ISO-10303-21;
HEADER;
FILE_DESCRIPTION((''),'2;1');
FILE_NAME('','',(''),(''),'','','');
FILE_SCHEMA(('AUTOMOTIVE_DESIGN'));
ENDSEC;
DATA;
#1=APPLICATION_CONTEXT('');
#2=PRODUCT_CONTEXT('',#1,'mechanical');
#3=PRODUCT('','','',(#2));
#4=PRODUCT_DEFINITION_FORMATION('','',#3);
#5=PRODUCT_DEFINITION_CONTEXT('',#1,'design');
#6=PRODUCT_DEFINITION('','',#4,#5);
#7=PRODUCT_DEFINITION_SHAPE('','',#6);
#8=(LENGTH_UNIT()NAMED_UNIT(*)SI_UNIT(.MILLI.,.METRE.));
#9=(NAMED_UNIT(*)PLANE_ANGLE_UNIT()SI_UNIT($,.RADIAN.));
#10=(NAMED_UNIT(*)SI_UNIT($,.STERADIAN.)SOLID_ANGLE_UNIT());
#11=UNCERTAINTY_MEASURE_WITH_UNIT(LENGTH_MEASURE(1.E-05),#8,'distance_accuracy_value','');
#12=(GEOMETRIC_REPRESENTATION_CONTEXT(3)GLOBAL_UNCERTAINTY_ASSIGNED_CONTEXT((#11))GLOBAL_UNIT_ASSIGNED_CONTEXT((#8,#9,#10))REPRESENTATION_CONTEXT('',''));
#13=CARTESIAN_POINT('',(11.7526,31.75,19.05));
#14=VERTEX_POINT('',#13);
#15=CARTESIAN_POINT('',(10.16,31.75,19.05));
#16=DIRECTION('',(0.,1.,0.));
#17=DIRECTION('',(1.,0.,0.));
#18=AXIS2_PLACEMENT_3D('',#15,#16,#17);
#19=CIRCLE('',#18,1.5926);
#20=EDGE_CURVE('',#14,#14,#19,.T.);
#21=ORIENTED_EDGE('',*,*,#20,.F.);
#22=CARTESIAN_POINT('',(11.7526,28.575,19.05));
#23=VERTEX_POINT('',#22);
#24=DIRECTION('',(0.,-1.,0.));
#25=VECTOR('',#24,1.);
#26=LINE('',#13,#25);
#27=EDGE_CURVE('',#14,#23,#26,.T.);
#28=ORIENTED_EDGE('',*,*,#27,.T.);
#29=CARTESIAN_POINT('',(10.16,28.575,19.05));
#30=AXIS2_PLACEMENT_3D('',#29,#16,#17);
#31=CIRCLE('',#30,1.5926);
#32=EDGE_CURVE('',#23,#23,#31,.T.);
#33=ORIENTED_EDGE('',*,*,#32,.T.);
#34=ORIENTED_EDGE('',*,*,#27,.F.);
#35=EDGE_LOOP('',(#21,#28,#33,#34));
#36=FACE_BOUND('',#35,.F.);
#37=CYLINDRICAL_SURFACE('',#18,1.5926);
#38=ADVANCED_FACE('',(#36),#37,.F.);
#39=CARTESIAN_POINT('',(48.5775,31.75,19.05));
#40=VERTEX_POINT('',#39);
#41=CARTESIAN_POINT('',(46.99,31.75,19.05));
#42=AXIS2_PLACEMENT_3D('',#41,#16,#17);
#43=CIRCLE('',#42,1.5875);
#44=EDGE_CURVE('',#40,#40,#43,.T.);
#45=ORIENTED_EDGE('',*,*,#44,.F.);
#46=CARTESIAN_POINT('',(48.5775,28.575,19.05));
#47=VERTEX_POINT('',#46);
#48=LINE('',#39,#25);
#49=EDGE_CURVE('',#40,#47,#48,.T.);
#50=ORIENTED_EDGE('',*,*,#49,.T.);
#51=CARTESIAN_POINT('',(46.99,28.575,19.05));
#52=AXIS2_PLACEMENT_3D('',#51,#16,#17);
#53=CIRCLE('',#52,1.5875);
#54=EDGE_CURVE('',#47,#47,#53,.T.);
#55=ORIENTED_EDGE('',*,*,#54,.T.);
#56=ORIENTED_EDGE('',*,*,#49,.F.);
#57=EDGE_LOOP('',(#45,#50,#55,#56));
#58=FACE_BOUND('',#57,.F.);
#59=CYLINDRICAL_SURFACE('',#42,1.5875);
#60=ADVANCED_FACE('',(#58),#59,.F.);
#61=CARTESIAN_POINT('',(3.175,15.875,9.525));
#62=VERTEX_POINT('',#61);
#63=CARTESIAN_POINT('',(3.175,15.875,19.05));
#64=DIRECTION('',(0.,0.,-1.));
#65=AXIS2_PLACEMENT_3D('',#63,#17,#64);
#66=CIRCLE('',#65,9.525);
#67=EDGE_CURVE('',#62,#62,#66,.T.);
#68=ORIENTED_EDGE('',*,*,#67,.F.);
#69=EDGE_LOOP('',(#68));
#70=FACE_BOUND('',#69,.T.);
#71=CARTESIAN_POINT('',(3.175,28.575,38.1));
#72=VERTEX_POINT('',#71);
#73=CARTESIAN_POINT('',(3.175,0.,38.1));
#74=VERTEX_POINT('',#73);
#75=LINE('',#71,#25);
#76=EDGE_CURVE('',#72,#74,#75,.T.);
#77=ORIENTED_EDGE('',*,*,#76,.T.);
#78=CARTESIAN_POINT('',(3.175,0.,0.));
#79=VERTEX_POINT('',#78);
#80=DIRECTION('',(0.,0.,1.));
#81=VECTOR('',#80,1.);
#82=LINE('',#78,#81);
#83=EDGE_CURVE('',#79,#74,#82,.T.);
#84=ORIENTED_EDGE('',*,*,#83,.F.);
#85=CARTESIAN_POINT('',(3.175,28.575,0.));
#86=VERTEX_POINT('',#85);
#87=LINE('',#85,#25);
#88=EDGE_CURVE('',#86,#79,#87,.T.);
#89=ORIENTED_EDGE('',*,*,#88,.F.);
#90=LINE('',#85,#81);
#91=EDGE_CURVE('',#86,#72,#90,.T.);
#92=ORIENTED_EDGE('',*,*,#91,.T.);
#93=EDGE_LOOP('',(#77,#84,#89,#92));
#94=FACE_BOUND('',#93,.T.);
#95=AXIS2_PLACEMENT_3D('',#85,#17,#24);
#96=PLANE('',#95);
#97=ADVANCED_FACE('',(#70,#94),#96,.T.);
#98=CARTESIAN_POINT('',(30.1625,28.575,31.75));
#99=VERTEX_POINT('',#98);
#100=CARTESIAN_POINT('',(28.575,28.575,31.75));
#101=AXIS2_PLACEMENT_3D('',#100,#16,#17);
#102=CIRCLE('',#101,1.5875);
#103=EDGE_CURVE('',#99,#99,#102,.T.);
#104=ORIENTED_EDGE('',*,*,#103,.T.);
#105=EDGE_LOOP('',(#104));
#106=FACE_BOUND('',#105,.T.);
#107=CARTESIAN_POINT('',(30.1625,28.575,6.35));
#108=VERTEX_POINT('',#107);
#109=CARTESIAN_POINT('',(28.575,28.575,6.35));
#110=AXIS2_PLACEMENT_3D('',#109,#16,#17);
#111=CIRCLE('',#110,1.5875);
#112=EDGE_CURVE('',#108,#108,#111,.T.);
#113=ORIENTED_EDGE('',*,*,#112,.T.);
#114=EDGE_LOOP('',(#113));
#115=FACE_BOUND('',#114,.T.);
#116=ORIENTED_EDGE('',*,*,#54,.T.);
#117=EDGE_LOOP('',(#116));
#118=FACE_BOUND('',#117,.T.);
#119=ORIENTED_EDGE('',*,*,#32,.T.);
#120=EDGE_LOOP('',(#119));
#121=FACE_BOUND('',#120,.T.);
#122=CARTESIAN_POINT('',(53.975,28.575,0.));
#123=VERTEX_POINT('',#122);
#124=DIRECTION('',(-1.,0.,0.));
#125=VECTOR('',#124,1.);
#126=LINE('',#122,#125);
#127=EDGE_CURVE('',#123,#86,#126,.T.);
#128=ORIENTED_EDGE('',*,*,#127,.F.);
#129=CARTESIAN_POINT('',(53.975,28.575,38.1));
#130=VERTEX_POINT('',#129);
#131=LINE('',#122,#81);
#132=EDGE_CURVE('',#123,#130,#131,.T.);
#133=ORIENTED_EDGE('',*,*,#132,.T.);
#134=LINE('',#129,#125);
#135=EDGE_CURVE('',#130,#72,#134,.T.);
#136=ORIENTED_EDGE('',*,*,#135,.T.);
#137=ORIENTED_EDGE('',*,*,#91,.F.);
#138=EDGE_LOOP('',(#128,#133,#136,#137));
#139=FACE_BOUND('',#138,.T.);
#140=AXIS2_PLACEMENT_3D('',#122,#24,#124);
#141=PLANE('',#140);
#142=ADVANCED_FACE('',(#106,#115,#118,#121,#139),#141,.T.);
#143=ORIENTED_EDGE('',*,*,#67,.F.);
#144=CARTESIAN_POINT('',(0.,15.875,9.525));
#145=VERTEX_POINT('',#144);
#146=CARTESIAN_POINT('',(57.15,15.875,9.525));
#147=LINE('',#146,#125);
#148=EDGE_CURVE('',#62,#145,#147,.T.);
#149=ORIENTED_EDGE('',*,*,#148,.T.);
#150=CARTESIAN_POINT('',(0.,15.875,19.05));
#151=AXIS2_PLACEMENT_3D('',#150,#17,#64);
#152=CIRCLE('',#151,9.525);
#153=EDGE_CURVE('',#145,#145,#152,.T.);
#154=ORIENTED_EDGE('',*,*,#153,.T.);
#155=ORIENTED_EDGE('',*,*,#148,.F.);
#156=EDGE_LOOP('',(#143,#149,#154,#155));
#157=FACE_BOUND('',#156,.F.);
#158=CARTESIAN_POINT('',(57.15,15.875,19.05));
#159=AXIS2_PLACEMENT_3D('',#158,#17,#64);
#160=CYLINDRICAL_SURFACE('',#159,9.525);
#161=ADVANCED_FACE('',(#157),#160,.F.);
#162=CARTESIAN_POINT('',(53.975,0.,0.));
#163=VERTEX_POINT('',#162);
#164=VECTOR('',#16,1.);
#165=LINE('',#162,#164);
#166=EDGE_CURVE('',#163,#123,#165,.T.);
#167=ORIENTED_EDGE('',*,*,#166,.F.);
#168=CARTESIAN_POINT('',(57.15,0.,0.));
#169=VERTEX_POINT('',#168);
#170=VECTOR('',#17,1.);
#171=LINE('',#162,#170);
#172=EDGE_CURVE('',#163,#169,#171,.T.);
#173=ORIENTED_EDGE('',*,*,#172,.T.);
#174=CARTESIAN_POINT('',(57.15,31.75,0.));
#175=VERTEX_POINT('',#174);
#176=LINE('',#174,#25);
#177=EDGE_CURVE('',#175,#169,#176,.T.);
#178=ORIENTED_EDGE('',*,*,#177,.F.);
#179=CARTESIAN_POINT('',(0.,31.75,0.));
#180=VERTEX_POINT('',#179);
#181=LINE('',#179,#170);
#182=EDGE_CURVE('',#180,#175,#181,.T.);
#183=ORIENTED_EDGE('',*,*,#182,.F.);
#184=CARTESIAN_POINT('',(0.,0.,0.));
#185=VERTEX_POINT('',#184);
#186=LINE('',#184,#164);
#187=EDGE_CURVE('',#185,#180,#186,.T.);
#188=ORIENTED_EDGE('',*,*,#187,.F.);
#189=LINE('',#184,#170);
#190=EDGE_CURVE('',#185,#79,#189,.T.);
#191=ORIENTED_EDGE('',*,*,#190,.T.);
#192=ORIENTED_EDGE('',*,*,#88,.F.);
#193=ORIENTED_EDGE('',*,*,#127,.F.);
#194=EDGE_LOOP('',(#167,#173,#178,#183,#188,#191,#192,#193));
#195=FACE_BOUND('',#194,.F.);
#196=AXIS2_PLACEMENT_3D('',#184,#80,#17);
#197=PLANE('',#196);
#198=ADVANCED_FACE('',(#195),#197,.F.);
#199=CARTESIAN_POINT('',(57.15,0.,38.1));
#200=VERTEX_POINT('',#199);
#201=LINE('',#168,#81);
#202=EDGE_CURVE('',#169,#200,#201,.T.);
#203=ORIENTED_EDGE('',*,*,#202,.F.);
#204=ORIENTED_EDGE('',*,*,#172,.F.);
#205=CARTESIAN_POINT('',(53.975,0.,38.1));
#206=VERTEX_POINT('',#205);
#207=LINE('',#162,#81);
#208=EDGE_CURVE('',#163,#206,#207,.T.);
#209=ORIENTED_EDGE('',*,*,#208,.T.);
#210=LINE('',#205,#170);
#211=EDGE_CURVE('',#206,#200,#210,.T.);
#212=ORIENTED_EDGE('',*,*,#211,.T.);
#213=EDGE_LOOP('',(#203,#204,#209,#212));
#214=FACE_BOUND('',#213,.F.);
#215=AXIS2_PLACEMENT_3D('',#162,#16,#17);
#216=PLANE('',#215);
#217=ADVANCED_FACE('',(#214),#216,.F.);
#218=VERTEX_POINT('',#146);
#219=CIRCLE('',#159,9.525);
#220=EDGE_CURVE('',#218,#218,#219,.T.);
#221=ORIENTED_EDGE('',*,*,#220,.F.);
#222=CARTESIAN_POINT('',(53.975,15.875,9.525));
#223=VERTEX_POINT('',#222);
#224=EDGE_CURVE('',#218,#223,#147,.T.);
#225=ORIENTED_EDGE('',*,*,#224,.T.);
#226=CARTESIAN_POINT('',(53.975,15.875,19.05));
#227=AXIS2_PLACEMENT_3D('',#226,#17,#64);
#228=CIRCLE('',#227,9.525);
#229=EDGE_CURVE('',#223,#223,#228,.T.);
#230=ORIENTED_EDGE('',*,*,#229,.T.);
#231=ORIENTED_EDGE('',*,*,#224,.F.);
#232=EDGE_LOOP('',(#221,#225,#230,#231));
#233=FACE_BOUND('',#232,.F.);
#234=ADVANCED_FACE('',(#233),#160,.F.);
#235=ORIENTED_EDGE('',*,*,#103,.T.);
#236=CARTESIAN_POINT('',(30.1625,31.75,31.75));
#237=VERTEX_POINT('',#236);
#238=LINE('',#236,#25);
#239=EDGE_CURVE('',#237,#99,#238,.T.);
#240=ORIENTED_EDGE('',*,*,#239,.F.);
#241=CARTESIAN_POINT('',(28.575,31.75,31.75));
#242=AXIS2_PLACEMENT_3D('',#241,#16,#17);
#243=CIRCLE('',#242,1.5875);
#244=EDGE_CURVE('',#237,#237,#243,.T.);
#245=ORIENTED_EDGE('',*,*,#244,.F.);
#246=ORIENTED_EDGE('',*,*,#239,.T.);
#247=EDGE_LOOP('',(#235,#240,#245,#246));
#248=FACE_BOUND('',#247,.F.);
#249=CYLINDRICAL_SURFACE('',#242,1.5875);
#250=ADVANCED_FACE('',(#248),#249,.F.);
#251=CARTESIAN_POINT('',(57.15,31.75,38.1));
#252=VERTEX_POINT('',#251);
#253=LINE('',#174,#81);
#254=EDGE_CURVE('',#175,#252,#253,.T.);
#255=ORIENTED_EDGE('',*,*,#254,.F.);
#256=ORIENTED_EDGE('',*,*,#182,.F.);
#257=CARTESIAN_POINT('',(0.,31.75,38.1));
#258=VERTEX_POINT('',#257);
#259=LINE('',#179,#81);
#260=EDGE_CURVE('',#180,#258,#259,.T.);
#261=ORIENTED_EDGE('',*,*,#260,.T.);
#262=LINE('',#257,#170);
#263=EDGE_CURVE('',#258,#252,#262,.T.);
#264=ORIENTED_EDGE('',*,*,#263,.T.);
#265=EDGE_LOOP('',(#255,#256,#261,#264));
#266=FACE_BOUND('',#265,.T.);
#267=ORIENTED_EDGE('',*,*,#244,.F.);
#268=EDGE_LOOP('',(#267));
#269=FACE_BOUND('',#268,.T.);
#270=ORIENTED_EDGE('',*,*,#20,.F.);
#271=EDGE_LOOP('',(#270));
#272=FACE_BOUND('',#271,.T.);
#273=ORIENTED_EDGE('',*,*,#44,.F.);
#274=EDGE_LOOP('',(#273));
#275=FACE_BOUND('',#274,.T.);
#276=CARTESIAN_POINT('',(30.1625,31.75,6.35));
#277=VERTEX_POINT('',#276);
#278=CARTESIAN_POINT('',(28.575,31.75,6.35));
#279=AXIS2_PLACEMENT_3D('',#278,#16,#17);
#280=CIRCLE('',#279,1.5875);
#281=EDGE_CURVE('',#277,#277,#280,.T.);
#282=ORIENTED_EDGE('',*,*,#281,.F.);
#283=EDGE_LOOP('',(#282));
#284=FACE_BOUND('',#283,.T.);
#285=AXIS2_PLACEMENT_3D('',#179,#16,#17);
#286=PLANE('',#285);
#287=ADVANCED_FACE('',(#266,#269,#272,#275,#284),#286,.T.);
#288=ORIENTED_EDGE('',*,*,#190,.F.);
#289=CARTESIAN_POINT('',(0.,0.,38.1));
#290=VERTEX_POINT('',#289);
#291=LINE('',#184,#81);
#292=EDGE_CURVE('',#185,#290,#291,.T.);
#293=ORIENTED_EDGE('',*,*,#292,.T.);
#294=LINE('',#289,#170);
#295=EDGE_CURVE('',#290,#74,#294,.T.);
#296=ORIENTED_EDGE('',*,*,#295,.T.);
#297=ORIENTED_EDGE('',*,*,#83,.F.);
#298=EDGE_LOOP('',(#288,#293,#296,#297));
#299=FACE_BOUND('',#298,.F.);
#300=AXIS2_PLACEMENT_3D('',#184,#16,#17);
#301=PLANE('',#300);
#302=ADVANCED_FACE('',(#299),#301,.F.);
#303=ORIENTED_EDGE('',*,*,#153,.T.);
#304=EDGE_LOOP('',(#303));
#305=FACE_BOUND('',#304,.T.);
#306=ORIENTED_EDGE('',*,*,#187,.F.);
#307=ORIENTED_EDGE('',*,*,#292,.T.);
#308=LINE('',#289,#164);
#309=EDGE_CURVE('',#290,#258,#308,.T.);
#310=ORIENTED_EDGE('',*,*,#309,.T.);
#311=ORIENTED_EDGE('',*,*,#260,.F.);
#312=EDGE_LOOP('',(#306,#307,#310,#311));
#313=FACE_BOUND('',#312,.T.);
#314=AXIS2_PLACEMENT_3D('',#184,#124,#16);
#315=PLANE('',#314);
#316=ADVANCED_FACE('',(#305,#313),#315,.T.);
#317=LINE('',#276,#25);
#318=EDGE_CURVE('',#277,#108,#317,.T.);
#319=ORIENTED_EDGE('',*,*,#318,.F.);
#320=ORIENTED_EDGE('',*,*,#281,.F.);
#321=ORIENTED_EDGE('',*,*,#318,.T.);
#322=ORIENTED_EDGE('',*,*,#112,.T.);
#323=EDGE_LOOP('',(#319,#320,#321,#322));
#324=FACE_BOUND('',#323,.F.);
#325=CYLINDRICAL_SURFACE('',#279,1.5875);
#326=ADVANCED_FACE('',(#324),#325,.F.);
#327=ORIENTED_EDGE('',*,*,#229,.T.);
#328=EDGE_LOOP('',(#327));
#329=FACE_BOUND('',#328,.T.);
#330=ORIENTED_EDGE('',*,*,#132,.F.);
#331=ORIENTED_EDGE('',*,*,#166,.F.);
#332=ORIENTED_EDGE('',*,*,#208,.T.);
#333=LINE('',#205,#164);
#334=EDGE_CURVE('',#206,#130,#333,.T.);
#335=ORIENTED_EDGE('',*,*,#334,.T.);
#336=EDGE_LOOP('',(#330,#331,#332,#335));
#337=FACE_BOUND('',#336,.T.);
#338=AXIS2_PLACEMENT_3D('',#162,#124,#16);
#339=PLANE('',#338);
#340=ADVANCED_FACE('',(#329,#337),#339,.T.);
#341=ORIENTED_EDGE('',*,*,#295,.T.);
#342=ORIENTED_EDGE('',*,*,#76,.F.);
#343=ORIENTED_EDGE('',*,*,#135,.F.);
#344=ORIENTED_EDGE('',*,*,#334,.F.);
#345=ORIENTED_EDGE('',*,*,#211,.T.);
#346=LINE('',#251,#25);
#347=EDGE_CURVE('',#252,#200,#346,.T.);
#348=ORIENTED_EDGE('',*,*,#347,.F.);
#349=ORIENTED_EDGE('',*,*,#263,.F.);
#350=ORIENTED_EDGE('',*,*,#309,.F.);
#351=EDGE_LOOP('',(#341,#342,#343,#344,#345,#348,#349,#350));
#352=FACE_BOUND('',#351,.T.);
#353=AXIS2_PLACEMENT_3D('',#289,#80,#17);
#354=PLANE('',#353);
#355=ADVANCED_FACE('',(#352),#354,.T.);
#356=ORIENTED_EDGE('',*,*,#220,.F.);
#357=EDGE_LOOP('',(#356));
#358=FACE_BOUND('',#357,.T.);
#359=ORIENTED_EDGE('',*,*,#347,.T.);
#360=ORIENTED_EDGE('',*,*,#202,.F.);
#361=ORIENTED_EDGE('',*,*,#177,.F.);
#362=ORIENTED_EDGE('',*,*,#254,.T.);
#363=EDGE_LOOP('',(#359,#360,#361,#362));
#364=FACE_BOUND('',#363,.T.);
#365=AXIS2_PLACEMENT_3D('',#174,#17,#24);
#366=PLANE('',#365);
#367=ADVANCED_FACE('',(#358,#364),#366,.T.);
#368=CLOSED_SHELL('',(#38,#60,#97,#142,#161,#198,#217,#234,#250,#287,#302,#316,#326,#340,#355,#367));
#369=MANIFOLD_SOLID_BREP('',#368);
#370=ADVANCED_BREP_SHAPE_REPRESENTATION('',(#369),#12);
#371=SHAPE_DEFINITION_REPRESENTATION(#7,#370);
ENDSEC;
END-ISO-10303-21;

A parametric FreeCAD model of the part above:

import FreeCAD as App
import Part
import Sketcher
Q = App.Units.Quantity

doc = App.newDocument("Part")
params = doc.addObject("Spreadsheet::Sheet", "Params")
for row, (alias, value) in enumerate([
    ("sketch1_width", "2.25 in"),
    ("sketch1_height", "1.25 in"),
    ("sketch1_width2", "0.125 in"),
    ("pad1_length", "1.5 in"),
    ("sketch2_diameter", "0.75 in"),
    ("pocket1_length", "1.5 in"),
    ("sketch3_diameter", "0.125 in"),
    ("pocket2_length", "1.5 in"),
    ("sketch4_diameter", "0.125 in"),
    ("pocket3_length", "1.5 in"),
    ("sketch5_diameter", "0.75 in"),
    ("pocket4_length", "5 in"),
], start=1):
    params.set(f"A{row}", alias)
    params.set(f"B{row}", "=" + value)
    params.setAlias(f"B{row}", alias)

body = doc.addObject("PartDesign::Body", "Body")

# Sketch on XY plane
sketch1 = body.newObject("Sketcher::SketchObject", "Sketch")
sketch1.AttachmentSupport = (doc.getObject("XY_Plane"), [""])
sketch1.MapMode = "FlatFace"
sketch1.addGeometry([
    Part.LineSegment(App.Vector(0, 31.8, 0), App.Vector(0, 0, 0)),  # 0
    Part.LineSegment(App.Vector(0, 0, 0), App.Vector(3.2, 0, 0)),  # 1
    Part.LineSegment(App.Vector(3.2, 0, 0), App.Vector(3.2, 28.6, 0)),  # 2
    Part.LineSegment(App.Vector(3.2, 28.6, 0), App.Vector(54, 28.6, 0)),  # 3
    Part.LineSegment(App.Vector(54, 28.6, 0), App.Vector(54, 0, 0)),  # 4
    Part.LineSegment(App.Vector(54, 0, 0), App.Vector(57.1, 0, 0)),  # 5
    Part.LineSegment(App.Vector(57.1, 0, 0), App.Vector(57.1, 31.8, 0)),  # 6
    Part.LineSegment(App.Vector(57.1, 31.8, 0), App.Vector(0, 31.8, 0)),  # 7
], False)
sketch1.addConstraint([
    Sketcher.Constraint("Coincident", 0, 2, 1, 1),
    Sketcher.Constraint("Coincident", 1, 2, 2, 1),
    Sketcher.Constraint("Coincident", 2, 2, 3, 1),
    Sketcher.Constraint("Coincident", 3, 2, 4, 1),
    Sketcher.Constraint("Coincident", 4, 2, 5, 1),
    Sketcher.Constraint("Coincident", 5, 2, 6, 1),
    Sketcher.Constraint("Coincident", 6, 2, 7, 1),
    Sketcher.Constraint("Coincident", 7, 2, 0, 1),
    Sketcher.Constraint("Vertical", 0),
    Sketcher.Constraint("Horizontal", 1),
    Sketcher.Constraint("Vertical", 2),
    Sketcher.Constraint("Horizontal", 3),
    Sketcher.Constraint("Vertical", 4),
    Sketcher.Constraint("Horizontal", 5),
    Sketcher.Constraint("Vertical", 6),
    Sketcher.Constraint("Horizontal", 7),
    Sketcher.Constraint("Coincident", 0, 2, -1, 1),
    Sketcher.Constraint("PointOnObject", 4, 2, -1),
    Sketcher.Constraint("Equal", 1, 5),
    Sketcher.Constraint("DistanceX", 7, 2, 7, 1, Q("2.25 in")),
    Sketcher.Constraint("DistanceY", 0, 2, 0, 1, Q("1.25 in")),
    Sketcher.Constraint("DistanceX", 1, 1, 1, 2, Q("0.125 in")),
    Sketcher.Constraint("DistanceY", 3, 2, 6, 2, Q("0.125 in")),
])
sketch1.setExpression("Constraints[19]", "Params.sketch1_width")
sketch1.setExpression("Constraints[20]", "Params.sketch1_height")
sketch1.setExpression("Constraints[21]", "Params.sketch1_width2")
pad1 = body.newObject("PartDesign::Pad", "Pad")
pad1.Profile = sketch1
pad1.setExpression("Length", "Params.pad1_length")

# Sketch on YZ plane
sketch2 = body.newObject("Sketcher::SketchObject", "Sketch001")
sketch2.AttachmentSupport = (doc.getObject("YZ_Plane"), [""])
sketch2.MapMode = "FlatFace"
sketch2.AttachmentOffset = App.Placement(App.Vector(0, 0, 2.25 * 25.4), App.Rotation())
sketch2.addGeometry(Part.Circle(App.Vector(16, 19, 0), App.Vector(0, 0, 1), 10), False)
sketch2.addConstraint([
    Sketcher.Constraint("Diameter", 0, Q("0.75 in")),
    Sketcher.Constraint("DistanceY", -1, 1, 0, 3, Q("0.75 in")),
    Sketcher.Constraint("DistanceX", -1, 1, 0, 3, Q("0.625 in")),
])
sketch2.setExpression("Constraints[0]", "Params.sketch2_diameter")
pocket1 = body.newObject("PartDesign::Pocket", "Pocket")
pocket1.Profile = sketch2
pocket1.setExpression("Length", "Params.pocket1_length")

# Sketch on YZ plane
sketch3 = body.newObject("Sketcher::SketchObject", "Sketch002")
sketch3.AttachmentSupport = (doc.getObject("YZ_Plane"), [""])
sketch3.MapMode = "FlatFace"
sketch3.addGeometry(Part.Circle(App.Vector(15.9, 19.1, 0), App.Vector(0, 0, 1), 1.6), False)
sketch3.addConstraint([
    Sketcher.Constraint("Diameter", 0, Q("0.125 in")),
    Sketcher.Constraint("DistanceY", -1, 1, 0, 3, Q("0.75 in")),
    Sketcher.Constraint("DistanceX", -1, 1, 0, 3, Q("0.625 in")),
])
sketch3.setExpression("Constraints[0]", "Params.sketch3_diameter")
pocket2 = body.newObject("PartDesign::Pocket", "Pocket001")
pocket2.Profile = sketch3
pocket2.setExpression("Length", "Params.pocket2_length")
pocket2.Reversed = True

# Sketch on XZ plane
sketch4 = body.newObject("Sketcher::SketchObject", "Sketch003")
sketch4.AttachmentSupport = (doc.getObject("XZ_Plane"), [""])
sketch4.MapMode = "FlatFace"
sketch4.AttachmentOffset = App.Placement(App.Vector(0, 0, -1.25 * 25.4), App.Rotation())
sketch4.addGeometry([
    Part.Circle(App.Vector(10.2, 19.1, 0), App.Vector(0, 0, 1), 1.6),
    Part.Circle(App.Vector(47, 19.1, 0), App.Vector(0, 0, 1), 1.6),
    Part.Circle(App.Vector(28.6, 31.8, 0), App.Vector(0, 0, 1), 1.6),
    Part.Circle(App.Vector(28.6, 6.3, 0), App.Vector(0, 0, 1), 1.6),
], False)
sketch4.addConstraint([
    Sketcher.Constraint("Equal", 1, 2),
    Sketcher.Constraint("Equal", 2, 3),
    Sketcher.Constraint("Horizontal", 0, 3, 1, 3),
    Sketcher.Constraint("Vertical", 2, 3, 3, 3),
    Sketcher.Constraint("Diameter", 1, Q("0.125 in")),
    Sketcher.Constraint("Diameter", 0, Q("0.1254 in")),
    Sketcher.Constraint("DistanceX", -1, 1, 0, 3, Q("0.4 in")),
    Sketcher.Constraint("DistanceY", -1, 1, 0, 3, Q("0.75 in")),
    Sketcher.Constraint("DistanceY", -1, 1, 3, 3, Q("0.25 in")),
    Sketcher.Constraint("DistanceY", 3, 3, 2, 3, Q("1 in")),
    Sketcher.Constraint("DistanceX", -1, 1, 1, 3, Q("1.85 in")),
    Sketcher.Constraint("DistanceX", -1, 1, 2, 3, Q("1.125 in")),
])
sketch4.setExpression("Constraints[4]", "Params.sketch4_diameter")
pocket3 = body.newObject("PartDesign::Pocket", "Pocket002")
pocket3.Profile = sketch4
pocket3.setExpression("Length", "Params.pocket3_length")
pocket3.Reversed = True

# Sketch on YZ plane
sketch5 = body.newObject("Sketcher::SketchObject", "Sketch004")
sketch5.AttachmentSupport = (doc.getObject("YZ_Plane"), [""])
sketch5.MapMode = "FlatFace"
sketch5.AttachmentOffset = App.Placement(App.Vector(0, 0, 2.25 * 25.4), App.Rotation())
sketch5.addGeometry(Part.Circle(App.Vector(16, 19, 0), App.Vector(0, 0, 1), 10), False)
sketch5.addConstraint([
    Sketcher.Constraint("Diameter", 0, Q("0.75 in")),
    Sketcher.Constraint("DistanceY", -1, 1, 0, 3, Q("0.75 in")),
    Sketcher.Constraint("DistanceX", -1, 1, 0, 3, Q("0.625 in")),
])
sketch5.setExpression("Constraints[0]", "Params.sketch5_diameter")
pocket4 = body.newObject("PartDesign::Pocket", "Pocket003")
pocket4.Profile = sketch5
pocket4.setExpression("Length", "Params.pocket4_length")

doc.recompute()
